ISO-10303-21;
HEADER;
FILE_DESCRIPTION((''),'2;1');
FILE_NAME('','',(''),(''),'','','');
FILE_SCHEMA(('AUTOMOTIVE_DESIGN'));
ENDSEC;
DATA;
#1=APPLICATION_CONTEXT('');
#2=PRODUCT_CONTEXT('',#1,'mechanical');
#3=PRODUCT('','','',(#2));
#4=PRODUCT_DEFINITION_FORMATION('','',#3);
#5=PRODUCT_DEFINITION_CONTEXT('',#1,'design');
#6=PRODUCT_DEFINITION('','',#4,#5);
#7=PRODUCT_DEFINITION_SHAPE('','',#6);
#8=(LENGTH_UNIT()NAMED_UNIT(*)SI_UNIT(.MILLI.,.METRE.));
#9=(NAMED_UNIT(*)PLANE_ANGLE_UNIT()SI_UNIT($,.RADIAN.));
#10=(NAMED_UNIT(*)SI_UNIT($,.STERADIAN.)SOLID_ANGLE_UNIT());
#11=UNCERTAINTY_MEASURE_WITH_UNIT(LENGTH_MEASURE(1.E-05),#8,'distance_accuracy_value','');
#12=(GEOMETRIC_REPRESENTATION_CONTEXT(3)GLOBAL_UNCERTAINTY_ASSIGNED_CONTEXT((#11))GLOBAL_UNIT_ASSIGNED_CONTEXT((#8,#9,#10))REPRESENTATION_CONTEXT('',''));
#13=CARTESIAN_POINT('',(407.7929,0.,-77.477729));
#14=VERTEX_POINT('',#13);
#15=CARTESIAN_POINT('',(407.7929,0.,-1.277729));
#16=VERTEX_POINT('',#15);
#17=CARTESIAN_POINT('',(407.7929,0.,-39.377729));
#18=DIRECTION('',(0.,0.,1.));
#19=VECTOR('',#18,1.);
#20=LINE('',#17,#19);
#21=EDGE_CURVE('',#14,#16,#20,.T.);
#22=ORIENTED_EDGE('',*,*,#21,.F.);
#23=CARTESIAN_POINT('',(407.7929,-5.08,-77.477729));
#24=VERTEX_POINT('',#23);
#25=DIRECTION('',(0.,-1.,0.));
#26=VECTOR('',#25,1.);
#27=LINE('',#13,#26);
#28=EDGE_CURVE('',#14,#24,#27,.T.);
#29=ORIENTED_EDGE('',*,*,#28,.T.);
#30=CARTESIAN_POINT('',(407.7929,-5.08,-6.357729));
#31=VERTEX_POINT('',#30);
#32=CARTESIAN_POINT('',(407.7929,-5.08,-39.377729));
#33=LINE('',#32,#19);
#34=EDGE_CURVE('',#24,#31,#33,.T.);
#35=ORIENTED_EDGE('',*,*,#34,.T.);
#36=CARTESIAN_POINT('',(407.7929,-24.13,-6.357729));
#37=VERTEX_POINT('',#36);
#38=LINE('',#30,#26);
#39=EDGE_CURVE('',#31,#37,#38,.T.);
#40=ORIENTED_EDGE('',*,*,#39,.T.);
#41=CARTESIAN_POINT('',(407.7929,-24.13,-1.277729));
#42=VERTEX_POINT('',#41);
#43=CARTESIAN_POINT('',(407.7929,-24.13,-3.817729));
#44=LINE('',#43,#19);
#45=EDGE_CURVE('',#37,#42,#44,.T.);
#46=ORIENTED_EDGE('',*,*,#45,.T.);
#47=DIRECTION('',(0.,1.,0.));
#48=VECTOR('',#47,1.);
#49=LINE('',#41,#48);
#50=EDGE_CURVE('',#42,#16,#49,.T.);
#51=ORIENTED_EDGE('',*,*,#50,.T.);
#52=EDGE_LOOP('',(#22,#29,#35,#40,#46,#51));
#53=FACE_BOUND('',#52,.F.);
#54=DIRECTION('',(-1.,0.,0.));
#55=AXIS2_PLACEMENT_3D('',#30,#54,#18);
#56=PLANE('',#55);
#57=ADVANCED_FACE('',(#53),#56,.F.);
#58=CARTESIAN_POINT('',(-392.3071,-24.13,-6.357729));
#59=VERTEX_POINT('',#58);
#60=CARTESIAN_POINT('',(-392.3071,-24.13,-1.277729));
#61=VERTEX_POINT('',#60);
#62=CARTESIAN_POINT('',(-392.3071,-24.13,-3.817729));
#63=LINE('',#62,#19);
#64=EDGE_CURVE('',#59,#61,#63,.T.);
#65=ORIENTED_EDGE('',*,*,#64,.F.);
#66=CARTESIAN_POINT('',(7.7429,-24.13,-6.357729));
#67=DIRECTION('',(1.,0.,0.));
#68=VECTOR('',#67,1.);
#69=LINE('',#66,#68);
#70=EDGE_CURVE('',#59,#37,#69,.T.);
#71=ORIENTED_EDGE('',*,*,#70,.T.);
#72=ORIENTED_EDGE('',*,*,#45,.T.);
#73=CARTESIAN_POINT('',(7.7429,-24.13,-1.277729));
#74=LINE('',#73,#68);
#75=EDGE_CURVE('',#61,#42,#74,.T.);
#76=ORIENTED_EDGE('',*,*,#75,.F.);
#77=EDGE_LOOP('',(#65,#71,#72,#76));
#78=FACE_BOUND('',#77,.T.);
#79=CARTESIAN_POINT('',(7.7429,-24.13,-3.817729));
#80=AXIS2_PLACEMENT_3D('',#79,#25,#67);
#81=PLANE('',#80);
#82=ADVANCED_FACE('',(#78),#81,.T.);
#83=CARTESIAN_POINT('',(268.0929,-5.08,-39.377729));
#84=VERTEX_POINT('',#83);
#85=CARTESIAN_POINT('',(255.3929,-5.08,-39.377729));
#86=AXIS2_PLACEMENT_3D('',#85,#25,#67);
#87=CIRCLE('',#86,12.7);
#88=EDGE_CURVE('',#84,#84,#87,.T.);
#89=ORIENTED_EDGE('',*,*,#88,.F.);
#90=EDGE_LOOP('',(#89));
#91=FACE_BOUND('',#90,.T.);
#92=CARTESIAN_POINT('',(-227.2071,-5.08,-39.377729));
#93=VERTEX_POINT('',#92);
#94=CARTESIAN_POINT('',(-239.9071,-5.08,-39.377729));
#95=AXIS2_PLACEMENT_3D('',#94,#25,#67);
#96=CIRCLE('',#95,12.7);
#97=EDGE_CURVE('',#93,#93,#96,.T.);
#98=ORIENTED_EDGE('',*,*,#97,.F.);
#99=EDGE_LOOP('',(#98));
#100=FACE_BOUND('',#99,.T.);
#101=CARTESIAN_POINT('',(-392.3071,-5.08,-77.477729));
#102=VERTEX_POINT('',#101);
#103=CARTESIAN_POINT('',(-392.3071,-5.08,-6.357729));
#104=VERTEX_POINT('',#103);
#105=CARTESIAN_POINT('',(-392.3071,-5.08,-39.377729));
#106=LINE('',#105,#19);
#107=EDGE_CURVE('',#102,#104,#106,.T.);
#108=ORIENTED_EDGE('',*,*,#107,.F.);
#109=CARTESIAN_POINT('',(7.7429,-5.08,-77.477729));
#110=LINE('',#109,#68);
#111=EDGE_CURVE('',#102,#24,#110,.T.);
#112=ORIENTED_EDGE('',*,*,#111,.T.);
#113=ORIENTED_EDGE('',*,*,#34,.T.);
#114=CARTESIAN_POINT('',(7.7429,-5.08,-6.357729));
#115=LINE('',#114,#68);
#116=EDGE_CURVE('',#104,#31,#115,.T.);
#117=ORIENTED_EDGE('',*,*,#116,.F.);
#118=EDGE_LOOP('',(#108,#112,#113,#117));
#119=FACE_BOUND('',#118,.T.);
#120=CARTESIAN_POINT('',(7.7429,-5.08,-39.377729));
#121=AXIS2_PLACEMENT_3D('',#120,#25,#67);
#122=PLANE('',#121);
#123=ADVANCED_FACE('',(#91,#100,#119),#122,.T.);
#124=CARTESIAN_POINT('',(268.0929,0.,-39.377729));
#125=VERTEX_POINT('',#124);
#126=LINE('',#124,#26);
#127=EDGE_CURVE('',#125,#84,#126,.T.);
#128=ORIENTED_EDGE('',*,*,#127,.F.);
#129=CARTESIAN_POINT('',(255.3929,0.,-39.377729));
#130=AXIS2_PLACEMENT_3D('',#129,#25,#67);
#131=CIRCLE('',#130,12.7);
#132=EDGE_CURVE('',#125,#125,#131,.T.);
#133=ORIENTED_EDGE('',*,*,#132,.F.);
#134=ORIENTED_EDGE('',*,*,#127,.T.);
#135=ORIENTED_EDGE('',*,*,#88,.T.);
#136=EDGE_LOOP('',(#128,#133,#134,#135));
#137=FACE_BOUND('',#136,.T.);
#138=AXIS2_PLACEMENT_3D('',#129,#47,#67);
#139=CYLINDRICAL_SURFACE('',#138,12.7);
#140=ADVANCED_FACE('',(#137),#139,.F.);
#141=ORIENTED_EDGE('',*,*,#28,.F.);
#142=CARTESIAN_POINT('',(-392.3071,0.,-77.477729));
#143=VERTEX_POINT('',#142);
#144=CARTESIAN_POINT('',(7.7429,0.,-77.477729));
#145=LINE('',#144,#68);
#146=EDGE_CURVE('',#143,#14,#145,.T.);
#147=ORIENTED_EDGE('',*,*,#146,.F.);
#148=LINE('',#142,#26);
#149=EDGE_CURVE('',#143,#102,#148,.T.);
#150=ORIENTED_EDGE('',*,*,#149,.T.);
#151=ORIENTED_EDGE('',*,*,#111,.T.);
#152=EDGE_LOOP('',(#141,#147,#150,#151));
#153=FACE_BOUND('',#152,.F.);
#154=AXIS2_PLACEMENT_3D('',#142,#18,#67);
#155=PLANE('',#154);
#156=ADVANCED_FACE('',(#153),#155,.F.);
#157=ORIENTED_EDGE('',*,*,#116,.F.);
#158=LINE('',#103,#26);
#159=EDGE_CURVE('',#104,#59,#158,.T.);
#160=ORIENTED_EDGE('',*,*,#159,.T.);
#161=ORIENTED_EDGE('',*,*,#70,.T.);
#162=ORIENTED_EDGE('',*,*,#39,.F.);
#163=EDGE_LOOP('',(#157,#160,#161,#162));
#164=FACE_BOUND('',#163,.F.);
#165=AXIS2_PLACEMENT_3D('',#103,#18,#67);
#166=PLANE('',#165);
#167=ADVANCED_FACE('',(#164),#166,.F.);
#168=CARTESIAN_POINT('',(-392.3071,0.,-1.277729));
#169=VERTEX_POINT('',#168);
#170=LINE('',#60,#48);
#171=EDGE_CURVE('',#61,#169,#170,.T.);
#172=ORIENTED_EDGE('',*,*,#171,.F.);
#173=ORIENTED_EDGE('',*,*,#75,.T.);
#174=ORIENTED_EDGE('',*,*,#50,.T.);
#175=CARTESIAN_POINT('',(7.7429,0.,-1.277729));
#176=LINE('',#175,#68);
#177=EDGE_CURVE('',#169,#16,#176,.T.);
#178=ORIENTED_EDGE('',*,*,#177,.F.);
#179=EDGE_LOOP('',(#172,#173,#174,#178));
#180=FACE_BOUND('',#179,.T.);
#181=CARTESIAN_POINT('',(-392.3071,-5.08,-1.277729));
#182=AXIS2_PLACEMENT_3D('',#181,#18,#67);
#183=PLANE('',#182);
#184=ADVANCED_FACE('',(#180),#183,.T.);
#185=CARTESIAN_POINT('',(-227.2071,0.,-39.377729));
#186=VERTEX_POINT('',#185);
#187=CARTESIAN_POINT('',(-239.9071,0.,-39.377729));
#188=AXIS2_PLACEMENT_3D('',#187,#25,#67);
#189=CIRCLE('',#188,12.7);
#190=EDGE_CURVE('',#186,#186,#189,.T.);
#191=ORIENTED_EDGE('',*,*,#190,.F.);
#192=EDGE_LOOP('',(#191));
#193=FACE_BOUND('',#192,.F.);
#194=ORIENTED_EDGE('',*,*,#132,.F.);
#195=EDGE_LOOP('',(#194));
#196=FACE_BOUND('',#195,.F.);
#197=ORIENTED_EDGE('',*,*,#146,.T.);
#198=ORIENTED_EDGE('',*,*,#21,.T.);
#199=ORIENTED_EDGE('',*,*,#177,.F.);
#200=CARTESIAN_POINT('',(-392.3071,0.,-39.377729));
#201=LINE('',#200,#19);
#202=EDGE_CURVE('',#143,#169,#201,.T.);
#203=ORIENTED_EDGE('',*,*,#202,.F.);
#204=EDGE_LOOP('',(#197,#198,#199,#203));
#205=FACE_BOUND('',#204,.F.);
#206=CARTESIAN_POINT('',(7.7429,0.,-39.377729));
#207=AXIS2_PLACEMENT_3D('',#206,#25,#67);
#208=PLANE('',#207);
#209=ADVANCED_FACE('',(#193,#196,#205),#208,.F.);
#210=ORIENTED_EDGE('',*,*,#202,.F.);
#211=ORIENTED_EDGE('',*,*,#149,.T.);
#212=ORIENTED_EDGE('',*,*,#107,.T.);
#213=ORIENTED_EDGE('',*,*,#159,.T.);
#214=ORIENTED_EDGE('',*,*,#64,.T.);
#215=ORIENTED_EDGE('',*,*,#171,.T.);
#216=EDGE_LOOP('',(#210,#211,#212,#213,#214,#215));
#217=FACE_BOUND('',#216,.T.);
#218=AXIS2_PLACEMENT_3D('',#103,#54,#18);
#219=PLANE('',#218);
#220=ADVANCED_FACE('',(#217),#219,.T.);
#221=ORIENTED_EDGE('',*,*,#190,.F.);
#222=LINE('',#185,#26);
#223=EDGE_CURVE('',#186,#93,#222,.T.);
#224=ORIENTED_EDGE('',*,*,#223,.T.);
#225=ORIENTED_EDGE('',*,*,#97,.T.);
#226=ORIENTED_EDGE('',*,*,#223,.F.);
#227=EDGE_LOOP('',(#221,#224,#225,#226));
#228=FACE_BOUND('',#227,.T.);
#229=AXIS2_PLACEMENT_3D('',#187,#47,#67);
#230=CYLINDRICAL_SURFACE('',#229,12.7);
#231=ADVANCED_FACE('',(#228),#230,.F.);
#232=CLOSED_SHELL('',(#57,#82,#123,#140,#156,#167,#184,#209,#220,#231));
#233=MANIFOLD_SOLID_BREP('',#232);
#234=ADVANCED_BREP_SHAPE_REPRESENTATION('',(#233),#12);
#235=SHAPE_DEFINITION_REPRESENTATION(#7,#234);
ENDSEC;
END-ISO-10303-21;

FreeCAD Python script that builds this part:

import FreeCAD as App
import Part
import Sketcher

V = App.Vector
Q = App.Units.Quantity

doc = App.newDocument("Part")
params = doc.addObject("Spreadsheet::Sheet", "Params")
for row, (alias, value) in enumerate([
    ("sketch1_diameter", "1 in"),
    ("sketch1_height", "3 in"),
    ("sketch1_width", "31.5 in"),
    ("pad1_length", "0.2 in"),
    ("sketch2_width", "31.5 in"),
    ("sketch2_height", "0.2 in"),
    ("pad2_length", "0.75 in"),
], start=1):
    params.set(f"A{row}", alias)
    params.set(f"B{row}", "=" + value)
    params.setAlias(f"B{row}", alias)

body = doc.addObject("PartDesign::Body", "Body")

sketch1 = doc.addObject("Sketcher::SketchObject", "Sketch")
body.addObject(sketch1)
sketch1.AttachmentSupport = (doc.XZ_Plane, [""])
sketch1.MapMode = "FlatFace"
sketch1.addGeometry(Part.LineSegment(V(-392, -1, 0), V(-392, -77, 0)), False)
sketch1.addGeometry(Part.LineSegment(V(-392, -77, 0), V(408, -77, 0)), False)
sketch1.addGeometry(Part.LineSegment(V(408, -77, 0), V(408, -1, 0)), False)
sketch1.addGeometry(Part.LineSegment(V(408, -1, 0), V(-392, -1, 0)), False)
sketch1.addGeometry(Part.Circle(V(-240, -39, 0), V(0, 0, 1), 13), False)
sketch1.addGeometry(Part.Circle(V(255, -39, 0), V(0, 0, 1), 13), False)
sketch1.addConstraint(Sketcher.Constraint("Coincident", 0, 2, 1, 1))
sketch1.addConstraint(Sketcher.Constraint("Coincident", 1, 2, 2, 1))
sketch1.addConstraint(Sketcher.Constraint("Coincident", 2, 2, 3, 1))
sketch1.addConstraint(Sketcher.Constraint("Coincident", 3, 2, 0, 1))
sketch1.addConstraint(Sketcher.Constraint("Vertical", 0))
sketch1.addConstraint(Sketcher.Constraint("Horizontal", 1))
sketch1.addConstraint(Sketcher.Constraint("Vertical", 2))
sketch1.addConstraint(Sketcher.Constraint("Horizontal", 3))
sketch1.addConstraint(Sketcher.Constraint("Equal", 4, 5))
sketch1.addConstraint(Sketcher.Constraint("Horizontal", 4, 3, 5, 3))
sketch1.addConstraint(Sketcher.Constraint("Diameter", 4, Q("1 in")))
sketch1.addConstraint(Sketcher.Constraint("DistanceY", 0, 2, 0, 1, Q("3 in")))
sketch1.addConstraint(Sketcher.Constraint("DistanceX", 1, 1, 1, 2, Q("31.5 in")))
sketch1.addConstraint(Sketcher.Constraint("DistanceX", 0, 2, 4, 3, Q("6 in")))
sketch1.addConstraint(Sketcher.Constraint("DistanceX", 5, 3, 1, 2, Q("6 in")))
sketch1.addConstraint(Sketcher.Constraint("DistanceY", 0, 2, 4, 3, Q("1.5 in")))
sketch1.addConstraint(Sketcher.Constraint("DistanceX", 4, 3, -1, 1, 239.9071))
sketch1.addConstraint(Sketcher.Constraint("DistanceY", 4, 3, -1, 1, 39.377729))
sketch1.setExpression("Constraints[10]", "Params.sketch1_diameter")
sketch1.setExpression("Constraints[11]", "Params.sketch1_height")
sketch1.setExpression("Constraints[12]", "Params.sketch1_width")
pad1 = doc.addObject("PartDesign::Pad", "Pad")
body.addObject(pad1)
pad1.Profile = sketch1
pad1.setExpression("Length", "Params.pad1_length")

sketch2 = doc.addObject("Sketcher::SketchObject", "Sketch001")
body.addObject(sketch2)
sketch2.AttachmentSupport = (doc.XZ_Plane, [""])
sketch2.MapMode = "FlatFace"
sketch2.AttachmentOffset = App.Placement(V(0, 0, 0.2 * 25.4), App.Rotation())
sketch2.addGeometry(Part.LineSegment(V(-392, -1, 0), V(-392, -6, 0)), False)
sketch2.addGeometry(Part.LineSegment(V(-392, -6, 0), V(408, -6, 0)), False)
sketch2.addGeometry(Part.LineSegment(V(408, -6, 0), V(408, -1, 0)), False)
sketch2.addGeometry(Part.LineSegment(V(408, -1, 0), V(-392, -1, 0)), False)
sketch2.addConstraint(Sketcher.Constraint("Coincident", 0, 2, 1, 1))
sketch2.addConstraint(Sketcher.Constraint("Coincident", 1, 2, 2, 1))
sketch2.addConstraint(Sketcher.Constraint("Coincident", 2, 2, 3, 1))
sketch2.addConstraint(Sketcher.Constraint("Coincident", 3, 2, 0, 1))
sketch2.addConstraint(Sketcher.Constraint("Vertical", 0))
sketch2.addConstraint(Sketcher.Constraint("Horizontal", 1))
sketch2.addConstraint(Sketcher.Constraint("Vertical", 2))
sketch2.addConstraint(Sketcher.Constraint("Horizontal", 3))
sketch2.addConstraint(Sketcher.Constraint("DistanceX", 1, 1, 1, 2, Q("31.5 in")))
sketch2.addConstraint(Sketcher.Constraint("DistanceY", 0, 2, 0, 1, Q("0.2 in")))
sketch2.addConstraint(Sketcher.Constraint("DistanceX", 0, 2, -1, 1, 392.3071))
sketch2.addConstraint(Sketcher.Constraint("DistanceY", 0, 2, -1, 1, 6.357729))
sketch2.setExpression("Constraints[8]", "Params.sketch2_width")
sketch2.setExpression("Constraints[9]", "Params.sketch2_height")
pad2 = doc.addObject("PartDesign::Pad", "Pad001")
body.addObject(pad2)
pad2.Profile = sketch2
pad2.setExpression("Length", "Params.pad2_length")

doc.recompute()
